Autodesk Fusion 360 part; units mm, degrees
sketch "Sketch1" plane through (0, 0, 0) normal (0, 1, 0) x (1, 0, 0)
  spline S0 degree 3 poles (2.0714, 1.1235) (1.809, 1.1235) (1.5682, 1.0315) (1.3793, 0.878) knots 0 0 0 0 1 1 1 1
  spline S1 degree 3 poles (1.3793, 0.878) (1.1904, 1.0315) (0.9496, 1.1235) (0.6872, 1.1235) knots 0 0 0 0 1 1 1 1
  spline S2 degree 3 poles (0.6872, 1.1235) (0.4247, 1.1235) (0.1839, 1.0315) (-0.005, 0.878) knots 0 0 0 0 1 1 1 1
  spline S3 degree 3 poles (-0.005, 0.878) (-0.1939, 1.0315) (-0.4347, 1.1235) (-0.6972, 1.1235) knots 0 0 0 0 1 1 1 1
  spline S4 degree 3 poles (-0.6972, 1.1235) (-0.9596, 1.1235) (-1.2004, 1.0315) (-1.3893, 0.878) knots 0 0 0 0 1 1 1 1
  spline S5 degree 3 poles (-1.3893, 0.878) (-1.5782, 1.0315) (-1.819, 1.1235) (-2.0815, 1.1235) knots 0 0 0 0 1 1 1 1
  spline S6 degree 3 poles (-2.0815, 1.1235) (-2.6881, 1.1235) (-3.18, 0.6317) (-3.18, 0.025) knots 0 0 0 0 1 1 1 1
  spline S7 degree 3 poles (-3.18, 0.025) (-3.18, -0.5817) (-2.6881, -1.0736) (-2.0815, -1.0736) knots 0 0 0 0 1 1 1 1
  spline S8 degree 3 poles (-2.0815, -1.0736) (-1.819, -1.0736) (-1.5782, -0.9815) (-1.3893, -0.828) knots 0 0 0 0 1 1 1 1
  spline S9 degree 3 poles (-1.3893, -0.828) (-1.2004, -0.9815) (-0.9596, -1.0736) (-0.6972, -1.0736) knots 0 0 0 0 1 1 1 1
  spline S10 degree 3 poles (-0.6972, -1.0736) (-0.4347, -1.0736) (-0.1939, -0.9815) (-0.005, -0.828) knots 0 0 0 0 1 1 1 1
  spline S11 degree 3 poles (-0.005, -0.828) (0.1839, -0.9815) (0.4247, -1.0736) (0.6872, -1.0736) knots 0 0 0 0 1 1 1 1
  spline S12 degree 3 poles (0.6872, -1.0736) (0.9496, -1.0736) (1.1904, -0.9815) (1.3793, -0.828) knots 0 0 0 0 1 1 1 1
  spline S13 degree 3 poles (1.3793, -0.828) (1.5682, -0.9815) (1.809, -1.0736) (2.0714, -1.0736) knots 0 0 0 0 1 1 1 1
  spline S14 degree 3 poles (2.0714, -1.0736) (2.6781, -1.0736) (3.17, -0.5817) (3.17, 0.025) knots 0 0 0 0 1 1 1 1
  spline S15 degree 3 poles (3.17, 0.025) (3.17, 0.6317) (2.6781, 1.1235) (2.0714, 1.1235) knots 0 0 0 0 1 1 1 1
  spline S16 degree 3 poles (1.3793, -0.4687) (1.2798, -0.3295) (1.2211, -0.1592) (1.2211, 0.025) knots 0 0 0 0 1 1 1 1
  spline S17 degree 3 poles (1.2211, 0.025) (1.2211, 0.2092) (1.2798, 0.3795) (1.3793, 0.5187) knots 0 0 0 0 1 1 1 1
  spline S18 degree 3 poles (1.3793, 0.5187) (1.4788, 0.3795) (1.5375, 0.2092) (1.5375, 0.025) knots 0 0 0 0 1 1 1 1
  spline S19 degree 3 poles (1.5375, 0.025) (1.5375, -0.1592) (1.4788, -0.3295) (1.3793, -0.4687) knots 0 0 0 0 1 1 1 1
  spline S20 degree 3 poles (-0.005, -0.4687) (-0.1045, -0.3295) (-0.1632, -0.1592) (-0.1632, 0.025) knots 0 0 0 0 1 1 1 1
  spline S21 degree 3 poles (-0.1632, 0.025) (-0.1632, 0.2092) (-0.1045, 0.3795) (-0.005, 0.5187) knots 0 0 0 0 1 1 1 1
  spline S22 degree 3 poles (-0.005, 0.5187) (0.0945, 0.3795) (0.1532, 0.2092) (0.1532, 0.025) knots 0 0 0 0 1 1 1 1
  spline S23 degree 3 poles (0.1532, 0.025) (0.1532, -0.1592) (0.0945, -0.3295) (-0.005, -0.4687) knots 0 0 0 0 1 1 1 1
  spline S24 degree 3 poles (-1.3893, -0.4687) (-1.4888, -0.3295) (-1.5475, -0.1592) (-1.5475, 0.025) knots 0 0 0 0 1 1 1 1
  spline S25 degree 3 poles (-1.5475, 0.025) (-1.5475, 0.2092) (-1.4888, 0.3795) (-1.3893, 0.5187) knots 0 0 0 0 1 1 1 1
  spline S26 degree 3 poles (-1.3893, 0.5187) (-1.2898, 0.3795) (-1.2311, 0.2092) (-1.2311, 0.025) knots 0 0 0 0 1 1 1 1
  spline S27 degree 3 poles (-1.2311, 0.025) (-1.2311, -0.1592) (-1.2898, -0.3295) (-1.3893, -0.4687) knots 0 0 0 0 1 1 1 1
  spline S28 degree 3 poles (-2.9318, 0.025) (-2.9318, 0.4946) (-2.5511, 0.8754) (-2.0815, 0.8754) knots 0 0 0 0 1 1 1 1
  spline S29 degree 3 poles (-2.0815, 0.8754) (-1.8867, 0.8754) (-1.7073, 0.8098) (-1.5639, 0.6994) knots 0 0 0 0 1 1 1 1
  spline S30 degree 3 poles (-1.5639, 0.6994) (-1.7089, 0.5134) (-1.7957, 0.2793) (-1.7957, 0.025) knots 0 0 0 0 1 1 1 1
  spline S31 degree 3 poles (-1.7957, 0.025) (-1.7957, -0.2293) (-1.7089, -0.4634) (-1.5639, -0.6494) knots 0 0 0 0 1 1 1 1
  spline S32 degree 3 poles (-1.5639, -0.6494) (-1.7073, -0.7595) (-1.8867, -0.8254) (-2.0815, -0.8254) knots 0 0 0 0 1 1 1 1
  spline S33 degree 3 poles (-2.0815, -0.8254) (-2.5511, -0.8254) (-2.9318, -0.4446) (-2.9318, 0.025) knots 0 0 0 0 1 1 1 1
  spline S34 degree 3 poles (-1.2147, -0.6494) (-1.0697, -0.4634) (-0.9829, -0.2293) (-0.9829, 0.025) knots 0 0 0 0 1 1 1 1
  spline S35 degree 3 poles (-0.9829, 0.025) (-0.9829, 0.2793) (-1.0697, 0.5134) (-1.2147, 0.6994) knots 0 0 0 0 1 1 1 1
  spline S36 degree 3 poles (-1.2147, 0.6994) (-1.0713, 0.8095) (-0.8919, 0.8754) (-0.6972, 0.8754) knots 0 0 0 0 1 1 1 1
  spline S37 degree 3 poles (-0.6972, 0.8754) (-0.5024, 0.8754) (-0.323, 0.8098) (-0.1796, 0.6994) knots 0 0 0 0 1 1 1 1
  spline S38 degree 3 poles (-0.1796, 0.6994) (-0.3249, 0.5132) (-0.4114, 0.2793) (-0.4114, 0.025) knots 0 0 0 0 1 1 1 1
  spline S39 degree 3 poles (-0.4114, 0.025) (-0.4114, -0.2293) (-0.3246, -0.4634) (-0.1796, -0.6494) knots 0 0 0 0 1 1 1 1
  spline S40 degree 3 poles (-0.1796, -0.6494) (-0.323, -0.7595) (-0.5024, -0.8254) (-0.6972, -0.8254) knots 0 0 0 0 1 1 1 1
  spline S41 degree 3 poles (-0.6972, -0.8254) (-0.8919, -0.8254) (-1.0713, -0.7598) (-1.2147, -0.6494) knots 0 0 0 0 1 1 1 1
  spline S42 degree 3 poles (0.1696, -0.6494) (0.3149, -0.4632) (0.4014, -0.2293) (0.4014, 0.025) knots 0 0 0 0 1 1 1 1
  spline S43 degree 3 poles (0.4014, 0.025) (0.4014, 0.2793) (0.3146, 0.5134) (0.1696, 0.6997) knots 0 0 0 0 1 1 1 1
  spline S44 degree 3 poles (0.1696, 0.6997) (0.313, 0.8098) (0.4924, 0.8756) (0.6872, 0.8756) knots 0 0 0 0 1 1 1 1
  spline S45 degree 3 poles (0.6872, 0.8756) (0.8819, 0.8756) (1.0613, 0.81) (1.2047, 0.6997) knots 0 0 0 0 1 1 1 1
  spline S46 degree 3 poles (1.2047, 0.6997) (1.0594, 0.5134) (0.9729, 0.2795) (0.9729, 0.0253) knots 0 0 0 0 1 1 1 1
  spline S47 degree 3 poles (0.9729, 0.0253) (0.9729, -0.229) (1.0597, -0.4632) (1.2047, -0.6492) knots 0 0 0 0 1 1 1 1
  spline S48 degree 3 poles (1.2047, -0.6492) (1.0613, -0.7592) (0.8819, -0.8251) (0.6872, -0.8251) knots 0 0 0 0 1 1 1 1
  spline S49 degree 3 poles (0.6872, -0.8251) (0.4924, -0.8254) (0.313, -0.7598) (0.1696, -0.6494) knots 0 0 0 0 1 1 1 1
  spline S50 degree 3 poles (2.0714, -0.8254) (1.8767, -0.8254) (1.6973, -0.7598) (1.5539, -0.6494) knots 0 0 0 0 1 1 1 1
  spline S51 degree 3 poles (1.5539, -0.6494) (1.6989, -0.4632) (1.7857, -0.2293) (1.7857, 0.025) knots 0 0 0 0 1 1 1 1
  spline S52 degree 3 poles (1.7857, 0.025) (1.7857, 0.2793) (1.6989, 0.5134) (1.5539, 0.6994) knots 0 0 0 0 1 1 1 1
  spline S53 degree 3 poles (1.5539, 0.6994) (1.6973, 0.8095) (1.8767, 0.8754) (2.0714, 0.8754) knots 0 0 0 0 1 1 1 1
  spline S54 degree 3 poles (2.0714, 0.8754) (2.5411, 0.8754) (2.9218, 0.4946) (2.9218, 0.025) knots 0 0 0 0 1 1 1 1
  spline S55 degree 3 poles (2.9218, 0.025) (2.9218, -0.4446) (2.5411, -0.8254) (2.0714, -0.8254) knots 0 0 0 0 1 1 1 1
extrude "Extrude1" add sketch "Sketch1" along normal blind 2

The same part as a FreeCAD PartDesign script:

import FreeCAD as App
import Part
import Sketcher

doc = App.newDocument("Part")
body = doc.addObject("PartDesign::Body", "Body")

# Sketch on XZ plane
sketch1 = body.newObject("Sketcher::SketchObject", "Sketch")
sketch1.AttachmentSupport = (doc.getObject("XZ_Plane"), [""])
sketch1.MapMode = "FlatFace"
sketch1.addGeometry(Part.BSplineCurve([App.Vector(3.17, -0.025, 0), App.Vector(3.17, -0.6317, 0), App.Vector(2.6781, -1.1235, 0), App.Vector(2.0714, -1.1235, 0)], [4, 4], [0, 1], False, 3, [1, 1, 1, 1], False), False)
sketch1.addGeometry(Part.BSplineCurve([App.Vector(2.0714, -1.1235, 0), App.Vector(1.809, -1.1235, 0), App.Vector(1.5682, -1.0315, 0), App.Vector(1.3793, -0.878, 0)], [4, 4], [0, 1], False, 3, [1, 1, 1, 1], False), False)
sketch1.addGeometry(Part.BSplineCurve([App.Vector(1.3793, -0.878, 0), App.Vector(1.1904, -1.0315, 0), App.Vector(0.9496, -1.1235, 0), App.Vector(0.6872, -1.1235, 0)], [4, 4], [0, 1], False, 3, [1, 1, 1, 1], False), False)
sketch1.addGeometry(Part.BSplineCurve([App.Vector(0.6872, -1.1235, 0), App.Vector(0.4247, -1.1235, 0), App.Vector(0.1839, -1.0315, 0), App.Vector(-0.005, -0.878, 0)], [4, 4], [0, 1], False, 3, [1, 1, 1, 1], False), False)
sketch1.addGeometry(Part.BSplineCurve([App.Vector(-0.005, -0.878, 0), App.Vector(-0.1939, -1.0315, 0), App.Vector(-0.4347, -1.1235, 0), App.Vector(-0.6972, -1.1235, 0)], [4, 4], [0, 1], False, 3, [1, 1, 1, 1], False), False)
sketch1.addGeometry(Part.BSplineCurve([App.Vector(-0.6972, -1.1235, 0), App.Vector(-0.9596, -1.1235, 0), App.Vector(-1.2004, -1.0315, 0), App.Vector(-1.3893, -0.878, 0)], [4, 4], [0, 1], False, 3, [1, 1, 1, 1], False), False)
sketch1.addGeometry(Part.BSplineCurve([App.Vector(-1.3893, -0.878, 0), App.Vector(-1.5782, -1.0315, 0), App.Vector(-1.819, -1.1235, 0), App.Vector(-2.0815, -1.1235, 0)], [4, 4], [0, 1], False, 3, [1, 1, 1, 1], False), False)
sketch1.addGeometry(Part.BSplineCurve([App.Vector(-2.0815, -1.1235, 0), App.Vector(-2.6881, -1.1235, 0), App.Vector(-3.18, -0.6317, 0), App.Vector(-3.18, -0.025, 0)], [4, 4], [0, 1], False, 3, [1, 1, 1, 1], False), False)
sketch1.addGeometry(Part.BSplineCurve([App.Vector(-3.18, -0.025, 0), App.Vector(-3.18, 0.5817, 0), App.Vector(-2.6881, 1.0736, 0), App.Vector(-2.0815, 1.0736, 0)], [4, 4], [0, 1], False, 3, [1, 1, 1, 1], False), False)
sketch1.addGeometry(Part.BSplineCurve([App.Vector(-2.0815, 1.0736, 0), App.Vector(-1.819, 1.0736, 0), App.Vector(-1.5782, 0.9815, 0), App.Vector(-1.3893, 0.828, 0)], [4, 4], [0, 1], False, 3, [1, 1, 1, 1], False), False)
sketch1.addGeometry(Part.BSplineCurve([App.Vector(-1.3893, 0.828, 0), App.Vector(-1.2004, 0.9815, 0), App.Vector(-0.9596, 1.0736, 0), App.Vector(-0.6972, 1.0736, 0)], [4, 4], [0, 1], False, 3, [1, 1, 1, 1], False), False)
sketch1.addGeometry(Part.BSplineCurve([App.Vector(-0.6972, 1.0736, 0), App.Vector(-0.4347, 1.0736, 0), App.Vector(-0.1939, 0.9815, 0), App.Vector(-0.005, 0.828, 0)], [4, 4], [0, 1], False, 3, [1, 1, 1, 1], False), False)
sketch1.addGeometry(Part.BSplineCurve([App.Vector(-0.005, 0.828, 0), App.Vector(0.1839, 0.9815, 0), App.Vector(0.4247, 1.0736, 0), App.Vector(0.6872, 1.0736, 0)], [4, 4], [0, 1], False, 3, [1, 1, 1, 1], False), False)
sketch1.addGeometry(Part.BSplineCurve([App.Vector(0.6872, 1.0736, 0), App.Vector(0.9496, 1.0736, 0), App.Vector(1.1904, 0.9815, 0), App.Vector(1.3793, 0.828, 0)], [4, 4], [0, 1], False, 3, [1, 1, 1, 1], False), False)
sketch1.addGeometry(Part.BSplineCurve([App.Vector(1.3793, 0.828, 0), App.Vector(1.5682, 0.9815, 0), App.Vector(1.809, 1.0736, 0), App.Vector(2.0714, 1.0736, 0)], [4, 4], [0, 1], False, 3, [1, 1, 1, 1], False), False)
sketch1.addGeometry(Part.BSplineCurve([App.Vector(2.0714, 1.0736, 0), App.Vector(2.6781, 1.0736, 0), App.Vector(3.17, 0.5817, 0), App.Vector(3.17, -0.025, 0)], [4, 4], [0, 1], False, 3, [1, 1, 1, 1], False), False)
sketch1.addGeometry(Part.BSplineCurve([App.Vector(-2.0815, 0.8254, 0), App.Vector(-2.5511, 0.8254, 0), App.Vector(-2.9318, 0.4446, 0), App.Vector(-2.9318, -0.025, 0)], [4, 4], [0, 1], False, 3, [1, 1, 1, 1], False), False)
sketch1.addGeometry(Part.BSplineCurve([App.Vector(-2.9318, -0.025, 0), App.Vector(-2.9318, -0.4946, 0), App.Vector(-2.5511, -0.8754, 0), App.Vector(-2.0815, -0.8754, 0)], [4, 4], [0, 1], False, 3, [1, 1, 1, 1], False), False)
sketch1.addGeometry(Part.BSplineCurve([App.Vector(-2.0815, -0.8754, 0), App.Vector(-1.8867, -0.8754, 0), App.Vector(-1.7073, -0.8098, 0), App.Vector(-1.5639, -0.6994, 0)], [4, 4], [0, 1], False, 3, [1, 1, 1, 1], False), False)
sketch1.addGeometry(Part.BSplineCurve([App.Vector(-1.5639, -0.6994, 0), App.Vector(-1.7089, -0.5134, 0), App.Vector(-1.7957, -0.2793, 0), App.Vector(-1.7957, -0.025, 0)], [4, 4], [0, 1], False, 3, [1, 1, 1, 1], False), False)
sketch1.addGeometry(Part.BSplineCurve([App.Vector(-1.7957, -0.025, 0), App.Vector(-1.7957, 0.2293, 0), App.Vector(-1.7089, 0.4634, 0), App.Vector(-1.5639, 0.6494, 0)], [4, 4], [0, 1], False, 3, [1, 1, 1, 1], False), False)
sketch1.addGeometry(Part.BSplineCurve([App.Vector(-1.5639, 0.6494, 0), App.Vector(-1.7073, 0.7595, 0), App.Vector(-1.8867, 0.8254, 0), App.Vector(-2.0815, 0.8254, 0)], [4, 4], [0, 1], False, 3, [1, 1, 1, 1], False), False)
sketch1.addGeometry(Part.BSplineCurve([App.Vector(-1.2311, -0.025, 0), App.Vector(-1.2311, 0.1592, 0), App.Vector(-1.2898, 0.3295, 0), App.Vector(-1.3893, 0.4687, 0)], [4, 4], [0, 1], False, 3, [1, 1, 1, 1], False), False)
sketch1.addGeometry(Part.BSplineCurve([App.Vector(-1.3893, 0.4687, 0), App.Vector(-1.4888, 0.3295, 0), App.Vector(-1.5475, 0.1592, 0), App.Vector(-1.5475, -0.025, 0)], [4, 4], [0, 1], False, 3, [1, 1, 1, 1], False), False)
sketch1.addGeometry(Part.BSplineCurve([App.Vector(-1.5475, -0.025, 0), App.Vector(-1.5475, -0.2092, 0), App.Vector(-1.4888, -0.3795, 0), App.Vector(-1.3893, -0.5187, 0)], [4, 4], [0, 1], False, 3, [1, 1, 1, 1], False), False)
sketch1.addGeometry(Part.BSplineCurve([App.Vector(-1.3893, -0.5187, 0), App.Vector(-1.2898, -0.3795, 0), App.Vector(-1.2311, -0.2092, 0), App.Vector(-1.2311, -0.025, 0)], [4, 4], [0, 1], False, 3, [1, 1, 1, 1], False), False)
sketch1.addGeometry(Part.BSplineCurve([App.Vector(-0.6972, 0.8254, 0), App.Vector(-0.8919, 0.8254, 0), App.Vector(-1.0713, 0.7598, 0), App.Vector(-1.2147, 0.6494, 0)], [4, 4], [0, 1], False, 3, [1, 1, 1, 1], False), False)
sketch1.addGeometry(Part.BSplineCurve([App.Vector(-1.2147, 0.6494, 0), App.Vector(-1.0697, 0.4634, 0), App.Vector(-0.9829, 0.2293, 0), App.Vector(-0.9829, -0.025, 0)], [4, 4], [0, 1], False, 3, [1, 1, 1, 1], False), False)
sketch1.addGeometry(Part.BSplineCurve([App.Vector(-0.9829, -0.025, 0), App.Vector(-0.9829, -0.2793, 0), App.Vector(-1.0697, -0.5134, 0), App.Vector(-1.2147, -0.6994, 0)], [4, 4], [0, 1], False, 3, [1, 1, 1, 1], False), False)
sketch1.addGeometry(Part.BSplineCurve([App.Vector(-1.2147, -0.6994, 0), App.Vector(-1.0713, -0.8095, 0), App.Vector(-0.8919, -0.8754, 0), App.Vector(-0.6972, -0.8754, 0)], [4, 4], [0, 1], False, 3, [1, 1, 1, 1], False), False)
sketch1.addGeometry(Part.BSplineCurve([App.Vector(-0.6972, -0.8754, 0), App.Vector(-0.5024, -0.8754, 0), App.Vector(-0.323, -0.8098, 0), App.Vector(-0.1796, -0.6994, 0)], [4, 4], [0, 1], False, 3, [1, 1, 1, 1], False), False)
sketch1.addGeometry(Part.BSplineCurve([App.Vector(-0.1796, -0.6994, 0), App.Vector(-0.3249, -0.5132, 0), App.Vector(-0.4114, -0.2793, 0), App.Vector(-0.4114, -0.025, 0)], [4, 4], [0, 1], False, 3, [1, 1, 1, 1], False), False)
sketch1.addGeometry(Part.BSplineCurve([App.Vector(-0.4114, -0.025, 0), App.Vector(-0.4114, 0.2293, 0), App.Vector(-0.3246, 0.4634, 0), App.Vector(-0.1796, 0.6494, 0)], [4, 4], [0, 1], False, 3, [1, 1, 1, 1], False), False)
sketch1.addGeometry(Part.BSplineCurve([App.Vector(-0.1796, 0.6494, 0), App.Vector(-0.323, 0.7595, 0), App.Vector(-0.5024, 0.8254, 0), App.Vector(-0.6972, 0.8254, 0)], [4, 4], [0, 1], False, 3, [1, 1, 1, 1], False), False)
sketch1.addGeometry(Part.BSplineCurve([App.Vector(0.1532, -0.025, 0), App.Vector(0.1532, 0.1592, 0), App.Vector(0.0945, 0.3295, 0), App.Vector(-0.005, 0.4687, 0)], [4, 4], [0, 1], False, 3, [1, 1, 1, 1], False), False)
sketch1.addGeometry(Part.BSplineCurve([App.Vector(-0.005, 0.4687, 0), App.Vector(-0.1045, 0.3295, 0), App.Vector(-0.1632, 0.1592, 0), App.Vector(-0.1632, -0.025, 0)], [4, 4], [0, 1], False, 3, [1, 1, 1, 1], False), False)
sketch1.addGeometry(Part.BSplineCurve([App.Vector(-0.1632, -0.025, 0), App.Vector(-0.1632, -0.2092, 0), App.Vector(-0.1045, -0.3795, 0), App.Vector(-0.005, -0.5187, 0)], [4, 4], [0, 1], False, 3, [1, 1, 1, 1], False), False)
sketch1.addGeometry(Part.BSplineCurve([App.Vector(-0.005, -0.5187, 0), App.Vector(0.0945, -0.3795, 0), App.Vector(0.1532, -0.2092, 0), App.Vector(0.1532, -0.025, 0)], [4, 4], [0, 1], False, 3, [1, 1, 1, 1], False), False)
sketch1.addGeometry(Part.BSplineCurve([App.Vector(0.6872, 0.8251, 0), App.Vector(0.4924, 0.8254, 0), App.Vector(0.313, 0.7598, 0), App.Vector(0.1696, 0.6494, 0)], [4, 4], [0, 1], False, 3, [1, 1, 1, 1], False), False)
sketch1.addGeometry(Part.BSplineCurve([App.Vector(0.1696, 0.6494, 0), App.Vector(0.3149, 0.4632, 0), App.Vector(0.4014, 0.2293, 0), App.Vector(0.4014, -0.025, 0)], [4, 4], [0, 1], False, 3, [1, 1, 1, 1], False), False)
sketch1.addGeometry(Part.BSplineCurve([App.Vector(0.4014, -0.025, 0), App.Vector(0.4014, -0.2793, 0), App.Vector(0.3146, -0.5134, 0), App.Vector(0.1696, -0.6997, 0)], [4, 4], [0, 1], False, 3, [1, 1, 1, 1], False), False)
sketch1.addGeometry(Part.BSplineCurve([App.Vector(0.1696, -0.6997, 0), App.Vector(0.313, -0.8098, 0), App.Vector(0.4924, -0.8756, 0), App.Vector(0.6872, -0.8756, 0)], [4, 4], [0, 1], False, 3, [1, 1, 1, 1], False), False)
sketch1.addGeometry(Part.BSplineCurve([App.Vector(0.6872, -0.8756, 0), App.Vector(0.8819, -0.8756, 0), App.Vector(1.0613, -0.81, 0), App.Vector(1.2047, -0.6997, 0)], [4, 4], [0, 1], False, 3, [1, 1, 1, 1], False), False)
sketch1.addGeometry(Part.BSplineCurve([App.Vector(1.2047, -0.6997, 0), App.Vector(1.0594, -0.5134, 0), App.Vector(0.9729, -0.2795, 0), App.Vector(0.9729, -0.0253, 0)], [4, 4], [0, 1], False, 3, [1, 1, 1, 1], False), False)
sketch1.addGeometry(Part.BSplineCurve([App.Vector(0.9729, -0.0253, 0), App.Vector(0.9729, 0.229, 0), App.Vector(1.0597, 0.4632, 0), App.Vector(1.2047, 0.6492, 0)], [4, 4], [0, 1], False, 3, [1, 1, 1, 1], False), False)
sketch1.addGeometry(Part.BSplineCurve([App.Vector(1.2047, 0.6492, 0), App.Vector(1.0613, 0.7592, 0), App.Vector(0.8819, 0.8251, 0), App.Vector(0.6872, 0.8251, 0)], [4, 4], [0, 1], False, 3, [1, 1, 1, 1], False), False)
sketch1.addGeometry(Part.BSplineCurve([App.Vector(1.5375, -0.025, 0), App.Vector(1.5375, 0.1592, 0), App.Vector(1.4788, 0.3295, 0), App.Vector(1.3793, 0.4687, 0)], [4, 4], [0, 1], False, 3, [1, 1, 1, 1], False), False)
sketch1.addGeometry(Part.BSplineCurve([App.Vector(1.3793, 0.4687, 0), App.Vector(1.2798, 0.3295, 0), App.Vector(1.2211, 0.1592, 0), App.Vector(1.2211, -0.025, 0)], [4, 4], [0, 1], False, 3, [1, 1, 1, 1], False), False)
sketch1.addGeometry(Part.BSplineCurve([App.Vector(1.2211, -0.025, 0), App.Vector(1.2211, -0.2092, 0), App.Vector(1.2798, -0.3795, 0), App.Vector(1.3793, -0.5187, 0)], [4, 4], [0, 1], False, 3, [1, 1, 1, 1], False), False)
sketch1.addGeometry(Part.BSplineCurve([App.Vector(1.3793, -0.5187, 0), App.Vector(1.4788, -0.3795, 0), App.Vector(1.5375, -0.2092, 0), App.Vector(1.5375, -0.025, 0)], [4, 4], [0, 1], False, 3, [1, 1, 1, 1], False), False)
sketch1.addGeometry(Part.BSplineCurve([App.Vector(2.9218, -0.025, 0), App.Vector(2.9218, 0.4446, 0), App.Vector(2.5411, 0.8254, 0), App.Vector(2.0714, 0.8254, 0)], [4, 4], [0, 1], False, 3, [1, 1, 1, 1], False), False)
sketch1.addGeometry(Part.BSplineCurve([App.Vector(2.0714, 0.8254, 0), App.Vector(1.8767, 0.8254, 0), App.Vector(1.6973, 0.7598, 0), App.Vector(1.5539, 0.6494, 0)], [4, 4], [0, 1], False, 3, [1, 1, 1, 1], False), False)
sketch1.addGeometry(Part.BSplineCurve([App.Vector(1.5539, 0.6494, 0), App.Vector(1.6989, 0.4632, 0), App.Vector(1.7857, 0.2293, 0), App.Vector(1.7857, -0.025, 0)], [4, 4], [0, 1], False, 3, [1, 1, 1, 1], False), False)
sketch1.addGeometry(Part.BSplineCurve([App.Vector(1.7857, -0.025, 0), App.Vector(1.7857, -0.2793, 0), App.Vector(1.6989, -0.5134, 0), App.Vector(1.5539, -0.6994, 0)], [4, 4], [0, 1], False, 3, [1, 1, 1, 1], False), False)
sketch1.addGeometry(Part.BSplineCurve([App.Vector(1.5539, -0.6994, 0), App.Vector(1.6973, -0.8095, 0), App.Vector(1.8767, -0.8754, 0), App.Vector(2.0714, -0.8754, 0)], [4, 4], [0, 1], False, 3, [1, 1, 1, 1], False), False)
sketch1.addGeometry(Part.BSplineCurve([App.Vector(2.0714, -0.8754, 0), App.Vector(2.5411, -0.8754, 0), App.Vector(2.9218, -0.4946, 0), App.Vector(2.9218, -0.025, 0)], [4, 4], [0, 1], False, 3, [1, 1, 1, 1], False), False)
sketch1.addConstraint(Sketcher.Constraint("Block", 0))
sketch1.addConstraint(Sketcher.Constraint("Block", 1))
sketch1.addConstraint(Sketcher.Constraint("Block", 2))
sketch1.addConstraint(Sketcher.Constraint("Block", 3))
sketch1.addConstraint(Sketcher.Constraint("Block", 4))
sketch1.addConstraint(Sketcher.Constraint("Block", 5))
sketch1.addConstraint(Sketcher.Constraint("Block", 6))
sketch1.addConstraint(Sketcher.Constraint("Block", 7))
sketch1.addConstraint(Sketcher.Constraint("Block", 8))
sketch1.addConstraint(Sketcher.Constraint("Block", 9))
sketch1.addConstraint(Sketcher.Constraint("Block", 10))
sketch1.addConstraint(Sketcher.Constraint("Block", 11))
sketch1.addConstraint(Sketcher.Constraint("Block", 12))
sketch1.addConstraint(Sketcher.Constraint("Block", 13))
sketch1.addConstraint(Sketcher.Constraint("Block", 14))
sketch1.addConstraint(Sketcher.Constraint("Block", 15))
sketch1.addConstraint(Sketcher.Constraint("Block", 16))
sketch1.addConstraint(Sketcher.Constraint("Block", 17))
sketch1.addConstraint(Sketcher.Constraint("Block", 18))
sketch1.addConstraint(Sketcher.Constraint("Block", 19))
sketch1.addConstraint(Sketcher.Constraint("Block", 20))
sketch1.addConstraint(Sketcher.Constraint("Block", 21))
sketch1.addConstraint(Sketcher.Constraint("Block", 22))
sketch1.addConstraint(Sketcher.Constraint("Block", 23))
sketch1.addConstraint(Sketcher.Constraint("Block", 24))
sketch1.addConstraint(Sketcher.Constraint("Block", 25))
sketch1.addConstraint(Sketcher.Constraint("Block", 26))
sketch1.addConstraint(Sketcher.Constraint("Block", 27))
sketch1.addConstraint(Sketcher.Constraint("Block", 28))
sketch1.addConstraint(Sketcher.Constraint("Block", 29))
sketch1.addConstraint(Sketcher.Constraint("Block", 30))
sketch1.addConstraint(Sketcher.Constraint("Block", 31))
sketch1.addConstraint(Sketcher.Constraint("Block", 32))
sketch1.addConstraint(Sketcher.Constraint("Block", 33))
sketch1.addConstraint(Sketcher.Constraint("Block", 34))
sketch1.addConstraint(Sketcher.Constraint("Block", 35))
sketch1.addConstraint(Sketcher.Constraint("Block", 36))
sketch1.addConstraint(Sketcher.Constraint("Block", 37))
sketch1.addConstraint(Sketcher.Constraint("Block", 38))
sketch1.addConstraint(Sketcher.Constraint("Block", 39))
sketch1.addConstraint(Sketcher.Constraint("Block", 40))
sketch1.addConstraint(Sketcher.Constraint("Block", 41))
sketch1.addConstraint(Sketcher.Constraint("Block", 42))
sketch1.addConstraint(Sketcher.Constraint("Block", 43))
sketch1.addConstraint(Sketcher.Constraint("Block", 44))
sketch1.addConstraint(Sketcher.Constraint("Block", 45))
sketch1.addConstraint(Sketcher.Constraint("Block", 46))
sketch1.addConstraint(Sketcher.Constraint("Block", 47))
sketch1.addConstraint(Sketcher.Constraint("Block", 48))
sketch1.addConstraint(Sketcher.Constraint("Block", 49))
sketch1.addConstraint(Sketcher.Constraint("Block", 50))
sketch1.addConstraint(Sketcher.Constraint("Block", 51))
sketch1.addConstraint(Sketcher.Constraint("Block", 52))
sketch1.addConstraint(Sketcher.Constraint("Block", 53))
sketch1.addConstraint(Sketcher.Constraint("Block", 54))
sketch1.addConstraint(Sketcher.Constraint("Block", 55))
pad1 = body.newObject("PartDesign::Pad", "Pad")
pad1.Profile = sketch1
pad1.Length = 2
pad1.Reversed = True

doc.recompute()
